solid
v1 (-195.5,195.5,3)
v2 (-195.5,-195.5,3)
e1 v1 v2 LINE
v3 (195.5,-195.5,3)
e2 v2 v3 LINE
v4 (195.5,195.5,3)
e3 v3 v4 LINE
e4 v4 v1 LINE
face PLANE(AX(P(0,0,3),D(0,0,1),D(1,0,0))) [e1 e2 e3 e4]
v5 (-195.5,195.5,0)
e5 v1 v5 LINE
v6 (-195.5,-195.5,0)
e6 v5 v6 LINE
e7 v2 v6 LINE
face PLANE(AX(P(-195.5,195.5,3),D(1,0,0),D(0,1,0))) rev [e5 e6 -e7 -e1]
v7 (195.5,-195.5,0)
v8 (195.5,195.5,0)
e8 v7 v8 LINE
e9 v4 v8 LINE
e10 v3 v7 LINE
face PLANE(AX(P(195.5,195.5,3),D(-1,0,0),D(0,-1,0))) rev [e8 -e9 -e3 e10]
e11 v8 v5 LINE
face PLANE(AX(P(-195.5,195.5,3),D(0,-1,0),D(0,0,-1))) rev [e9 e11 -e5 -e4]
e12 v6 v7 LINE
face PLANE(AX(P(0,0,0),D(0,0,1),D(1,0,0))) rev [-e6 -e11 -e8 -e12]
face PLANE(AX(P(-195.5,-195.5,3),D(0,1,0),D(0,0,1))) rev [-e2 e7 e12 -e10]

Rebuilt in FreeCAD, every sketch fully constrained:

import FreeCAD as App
import Part
import Sketcher

V = App.Vector


def add_polygon(sketch, points):
    """Adds a closed chain of lines whose ends are joined by coincident constraints."""
    first, n = sketch.GeometryCount, len(points)
    for a, b in zip(points, points[1:] + points[:1]):
        sketch.addGeometry(Part.LineSegment(App.Vector(*a, 0), App.Vector(*b, 0)), False)
    for i in range(n):
        sketch.addConstraint(Sketcher.Constraint("Coincident", first + i, 2, first + (i + 1) % n, 1))

doc = App.newDocument("Part")
body = doc.addObject("PartDesign::Body", "Body")

# Sketch on XY plane
sketch1 = doc.addObject("Sketcher::SketchObject", "Sketch")
body.addObject(sketch1)
sketch1.AttachmentSupport = (doc.XY_Plane, [""])
sketch1.MapMode = "FlatFace"
add_polygon(sketch1, [(-196, 196), (-196, -196), (196, -196), (196, 196)])  # lines 0-3
sketch1.addConstraint([
    Sketcher.Constraint("Vertical", 0),
    Sketcher.Constraint("Horizontal", 1),
    Sketcher.Constraint("Vertical", 2),
    Sketcher.Constraint("Horizontal", 3),
    Sketcher.Constraint("Symmetric", 0, 2, 2, 2, -1, 1),
    Sketcher.Constraint("Equal", 3, 0),
    Sketcher.Constraint("DistanceX", 1, 1, 1, 2, 391.0),
])
pad1 = doc.addObject("PartDesign::Pad", "Pad")
body.addObject(pad1)
pad1.Profile = sketch1
pad1.Length = 3

doc.recompute()
